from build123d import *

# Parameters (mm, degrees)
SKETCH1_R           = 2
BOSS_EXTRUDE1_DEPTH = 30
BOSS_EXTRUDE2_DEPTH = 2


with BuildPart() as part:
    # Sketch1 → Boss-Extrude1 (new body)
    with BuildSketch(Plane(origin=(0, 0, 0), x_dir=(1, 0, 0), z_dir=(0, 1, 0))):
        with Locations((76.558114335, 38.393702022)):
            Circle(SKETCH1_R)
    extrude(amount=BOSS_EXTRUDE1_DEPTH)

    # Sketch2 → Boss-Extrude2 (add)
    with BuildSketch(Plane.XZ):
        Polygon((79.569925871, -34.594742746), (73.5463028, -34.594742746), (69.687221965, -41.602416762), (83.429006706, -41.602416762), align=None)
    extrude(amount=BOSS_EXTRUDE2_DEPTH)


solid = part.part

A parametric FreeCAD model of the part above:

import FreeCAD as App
import Part
import Sketcher
from FreeCAD import Vector

doc = App.newDocument("Part")
params = doc.addObject("Spreadsheet::Sheet", "Params")
for row, (alias, value) in enumerate([
    ("sketch1_diameter", "4 mm"),
    ("pad1_length", "30 mm"),
    ("sketch2_length", "8 mm"),
    ("pad2_length", "2 mm"),
], start=1):
    params.set(f"A{row}", alias)
    params.set(f"B{row}", "=" + value)
    params.setAlias(f"B{row}", alias)

body = doc.addObject("PartDesign::Body", "Body")

# Sketch on XZ plane
sketch1 = doc.addObject("Sketcher::SketchObject", "Sketch")
body.addObject(sketch1)
sketch1.AttachmentSupport = (doc.XZ_Plane, [""])
sketch1.MapMode = "FlatFace"
sketch1.addGeometry(Part.Circle(Vector(76.6, -38.4, 0), Vector(0, 0, 1), 2), False)
sketch1.addConstraint([
    Sketcher.Constraint("Diameter", 0, 4.0),
    Sketcher.Constraint("DistanceX", -1, 1, 0, 3, 76.558114),
    Sketcher.Constraint("DistanceY", 0, 3, -1, 1, 38.393702),
])
sketch1.setExpression("Constraints[0]", "Params.sketch1_diameter")
pad1 = doc.addObject("PartDesign::Pad", "Pad")
body.addObject(pad1)
pad1.Profile = sketch1
pad1.setExpression("Length", "Params.pad1_length")
pad1.Reversed = True

# Sketch on XZ plane
sketch2 = doc.addObject("Sketcher::SketchObject", "Sketch001")
body.addObject(sketch2)
sketch2.AttachmentSupport = (doc.XZ_Plane, [""])
sketch2.MapMode = "FlatFace"
sketch2.addGeometry([
    Part.LineSegment(Vector(80, -35, 0), Vector(74, -35, 0)),
    Part.LineSegment(Vector(74, -35, 0), Vector(70, -42, 0)),
    Part.LineSegment(Vector(70, -42, 0), Vector(83, -42, 0)),
    Part.LineSegment(Vector(83, -42, 0), Vector(80, -35, 0)),
], False)
sketch2.addConstraint([
    Sketcher.Constraint("Coincident", 0, 2, 1, 1),
    Sketcher.Constraint("Coincident", 1, 2, 2, 1),
    Sketcher.Constraint("Coincident", 2, 2, 3, 1),
    Sketcher.Constraint("Coincident", 3, 2, 0, 1),
    Sketcher.Constraint("Horizontal", 0),
    Sketcher.Constraint("Horizontal", 2),
    Sketcher.Constraint("Equal", 1, 3),
    Sketcher.Constraint("Distance", 1, 8.0),
    Sketcher.Constraint("DistanceX", 0, 2, 0, 1, 6.023623),
    Sketcher.Constraint("DistanceX", 2, 1, 2, 2, 13.741785),
    Sketcher.Constraint("DistanceX", -1, 1, 1, 2, 69.687222),
    Sketcher.Constraint("DistanceY", 0, 2, -1, 1, 34.594743),
])
sketch2.setExpression("Constraints[7]", "Params.sketch2_length")
pad2 = doc.addObject("PartDesign::Pad", "Pad001")
body.addObject(pad2)
pad2.Profile = sketch2
pad2.setExpression("Length", "Params.pad2_length")

doc.recompute()
